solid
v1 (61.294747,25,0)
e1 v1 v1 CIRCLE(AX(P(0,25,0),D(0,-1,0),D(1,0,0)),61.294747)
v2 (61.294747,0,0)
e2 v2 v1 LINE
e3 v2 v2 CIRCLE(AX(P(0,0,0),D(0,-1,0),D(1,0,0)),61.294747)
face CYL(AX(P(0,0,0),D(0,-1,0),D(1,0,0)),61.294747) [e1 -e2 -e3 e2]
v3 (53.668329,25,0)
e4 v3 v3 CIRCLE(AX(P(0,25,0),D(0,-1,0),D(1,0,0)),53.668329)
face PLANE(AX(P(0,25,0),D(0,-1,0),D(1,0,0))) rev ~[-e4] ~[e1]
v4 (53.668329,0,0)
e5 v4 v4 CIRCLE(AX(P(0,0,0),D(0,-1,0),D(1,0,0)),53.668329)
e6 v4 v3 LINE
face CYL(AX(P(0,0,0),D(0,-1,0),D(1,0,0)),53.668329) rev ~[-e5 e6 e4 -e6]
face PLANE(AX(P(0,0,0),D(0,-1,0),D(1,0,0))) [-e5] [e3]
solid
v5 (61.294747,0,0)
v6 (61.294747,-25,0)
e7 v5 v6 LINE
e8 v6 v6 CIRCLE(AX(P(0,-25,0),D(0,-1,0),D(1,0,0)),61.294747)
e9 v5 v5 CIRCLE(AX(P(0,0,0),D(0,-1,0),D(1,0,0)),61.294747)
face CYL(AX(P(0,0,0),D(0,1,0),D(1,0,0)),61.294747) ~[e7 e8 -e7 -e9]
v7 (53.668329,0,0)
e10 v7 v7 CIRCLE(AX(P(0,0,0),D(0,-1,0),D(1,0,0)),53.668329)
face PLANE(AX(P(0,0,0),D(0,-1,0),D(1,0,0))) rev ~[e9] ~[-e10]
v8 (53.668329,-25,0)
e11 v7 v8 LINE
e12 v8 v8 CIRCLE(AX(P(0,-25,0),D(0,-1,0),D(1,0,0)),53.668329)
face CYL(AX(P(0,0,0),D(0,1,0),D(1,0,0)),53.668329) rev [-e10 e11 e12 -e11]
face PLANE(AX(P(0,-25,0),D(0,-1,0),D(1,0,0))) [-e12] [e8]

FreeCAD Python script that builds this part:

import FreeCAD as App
import Part
import Sketcher
Q = App.Units.Quantity

doc = App.newDocument("Part")
body = doc.addObject("PartDesign::Body", "Body")

# Sketch on XZ plane
sketch1 = doc.addObject("Sketcher::SketchObject", "Sketch")
body.addObject(sketch1)
sketch1.AttachmentSupport = (doc.XZ_Plane, [""])
sketch1.MapMode = "FlatFace"
sketch1.addGeometry([
    Part.Circle(App.Vector(0, 0, 0), App.Vector(0, 0, 1), 61),
    Part.Circle(App.Vector(0, 0, 0), App.Vector(0, 0, 1), 54),
], False)
sketch1.addConstraint([
    Sketcher.Constraint("Coincident", 0, 3, -1, 1),
    Sketcher.Constraint("Coincident", 1, 3, -1, 1),
    Sketcher.Constraint("Diameter", 1, Q("107.336658 mm")),
    Sketcher.Constraint("Diameter", 0, Q("122.589494 mm")),
])
pad1 = doc.addObject("PartDesign::Pad", "Pad")
body.addObject(pad1)
pad1.Profile = sketch1
pad1.Length = 25
body2 = doc.addObject("PartDesign::Body", "Body001")

# Sketch on XZ plane
sketch2 = doc.addObject("Sketcher::SketchObject", "Sketch001")
body2.addObject(sketch2)
sketch2.AttachmentSupport = (doc.getObject("XZ_Plane001"), [""])
sketch2.MapMode = "FlatFace"
sketch2.addGeometry([
    Part.Circle(App.Vector(0, 0, 0), App.Vector(0, 0, 1), 61),
    Part.Circle(App.Vector(0, 0, 0), App.Vector(0, 0, 1), 54),
], False)
sketch2.addConstraint([
    Sketcher.Constraint("Coincident", 0, 3, -1, 1),
    Sketcher.Constraint("Coincident", 1, 3, -1, 1),
    Sketcher.Constraint("Diameter", 1, Q("107.336658 mm")),
    Sketcher.Constraint("Diameter", 0, Q("122.589494 mm")),
])
pad2 = doc.addObject("PartDesign::Pad", "Pad001")
body2.addObject(pad2)
pad2.Profile = sketch2
pad2.Length = 25
pad2.Reversed = True

doc.recompute()
